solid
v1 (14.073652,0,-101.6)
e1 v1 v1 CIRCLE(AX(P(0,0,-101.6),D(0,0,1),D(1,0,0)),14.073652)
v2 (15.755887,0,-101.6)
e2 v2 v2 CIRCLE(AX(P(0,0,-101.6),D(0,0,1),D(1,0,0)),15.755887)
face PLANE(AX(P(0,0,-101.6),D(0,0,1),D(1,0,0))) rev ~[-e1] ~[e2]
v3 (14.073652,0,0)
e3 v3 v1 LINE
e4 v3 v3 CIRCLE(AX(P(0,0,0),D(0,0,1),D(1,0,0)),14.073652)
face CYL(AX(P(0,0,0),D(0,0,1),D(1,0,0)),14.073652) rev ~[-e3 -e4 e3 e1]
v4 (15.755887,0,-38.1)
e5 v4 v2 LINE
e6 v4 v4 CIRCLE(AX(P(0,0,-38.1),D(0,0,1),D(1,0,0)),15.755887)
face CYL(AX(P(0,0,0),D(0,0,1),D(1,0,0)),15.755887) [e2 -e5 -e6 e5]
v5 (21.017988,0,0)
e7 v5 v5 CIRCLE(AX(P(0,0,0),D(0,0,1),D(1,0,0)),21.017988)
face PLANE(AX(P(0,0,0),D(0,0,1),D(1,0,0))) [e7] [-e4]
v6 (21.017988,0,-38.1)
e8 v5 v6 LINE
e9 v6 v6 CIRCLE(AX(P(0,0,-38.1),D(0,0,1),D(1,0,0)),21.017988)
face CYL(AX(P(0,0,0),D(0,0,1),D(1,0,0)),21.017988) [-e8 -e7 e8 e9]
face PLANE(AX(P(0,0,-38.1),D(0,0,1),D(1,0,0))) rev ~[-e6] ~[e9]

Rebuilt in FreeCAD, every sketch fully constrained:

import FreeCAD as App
import Part
import Sketcher
from FreeCAD import Vector
Q = App.Units.Quantity

doc = App.newDocument("Part")
params = doc.addObject("Spreadsheet::Sheet", "Params")
for row, (alias, value) in enumerate([
    ("pad1_length", "4 in"),
    ("pad2_length", "1.5 in"),
], start=1):
    params.set(f"A{row}", alias)
    params.set(f"B{row}", "=" + value)
    params.setAlias(f"B{row}", alias)

body = doc.addObject("PartDesign::Body", "Body")

# Sketch on XY plane
sketch1 = doc.addObject("Sketcher::SketchObject", "Sketch")
body.addObject(sketch1)
sketch1.AttachmentSupport = (doc.XY_Plane, [""])
sketch1.MapMode = "FlatFace"
sketch1.addGeometry(Part.Circle(Vector(0, 0, 0), Vector(0, 0, 1), 16), False)
sketch1.addConstraint(Sketcher.Constraint("Coincident", 0, 3, -1, 1))
sketch1.addConstraint(Sketcher.Constraint("Diameter", 0, Q("31.511774 mm")))
pad1 = doc.addObject("PartDesign::Pad", "Pad")
body.addObject(pad1)
pad1.Profile = sketch1
pad1.setExpression("Length", "Params.pad1_length")
pad1.Reversed = True

# Sketch on XY plane
sketch2 = doc.addObject("Sketcher::SketchObject", "Sketch001")
body.addObject(sketch2)
sketch2.AttachmentSupport = (doc.XY_Plane, [""])
sketch2.MapMode = "FlatFace"
sketch2.addGeometry(Part.Circle(Vector(0, 0, 0), Vector(0, 0, 1), 21), False)
sketch2.addConstraint(Sketcher.Constraint("Coincident", 0, 3, -1, 1))
sketch2.addConstraint(Sketcher.Constraint("Diameter", 0, Q("42.035976 mm")))
pad2 = doc.addObject("PartDesign::Pad", "Pad001")
body.addObject(pad2)
pad2.Profile = sketch2
pad2.setExpression("Length", "Params.pad2_length")
pad2.Reversed = True

# Sketch on XY plane
sketch3 = doc.addObject("Sketcher::SketchObject", "Sketch002")
body.addObject(sketch3)
sketch3.AttachmentSupport = (doc.XY_Plane, [""])
sketch3.MapMode = "FlatFace"
sketch3.addGeometry(Part.Circle(Vector(0, 0, 0), Vector(0, 0, 1), 14), False)
sketch3.addConstraint(Sketcher.Constraint("Coincident", 0, 3, -1, 1))
sketch3.addConstraint(Sketcher.Constraint("Diameter", 0, Q("28.147304 mm")))
pocket1 = doc.addObject("PartDesign::Pocket", "Pocket")
body.addObject(pocket1)
pocket1.Profile = sketch3
pocket1.Type = "ThroughAll"

doc.recompute()
